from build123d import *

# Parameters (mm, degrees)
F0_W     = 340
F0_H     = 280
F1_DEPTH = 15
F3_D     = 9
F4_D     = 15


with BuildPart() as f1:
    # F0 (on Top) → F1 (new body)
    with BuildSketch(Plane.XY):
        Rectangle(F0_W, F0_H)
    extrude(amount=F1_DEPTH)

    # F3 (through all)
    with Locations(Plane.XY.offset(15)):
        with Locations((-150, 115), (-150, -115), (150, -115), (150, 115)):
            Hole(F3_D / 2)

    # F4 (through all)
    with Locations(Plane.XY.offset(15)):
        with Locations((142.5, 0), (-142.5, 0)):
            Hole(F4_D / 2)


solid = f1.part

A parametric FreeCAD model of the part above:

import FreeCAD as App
import Part
import Sketcher

V = App.Vector


def add_polygon(sketch, points):
    """Adds a closed chain of lines whose ends are joined by coincident constraints."""
    first, n = sketch.GeometryCount, len(points)
    for a, b in zip(points, points[1:] + points[:1]):
        sketch.addGeometry(Part.LineSegment(App.Vector(*a, 0), App.Vector(*b, 0)), False)
    for i in range(n):
        sketch.addConstraint(Sketcher.Constraint("Coincident", first + i, 2, first + (i + 1) % n, 1))

doc = App.newDocument("Part")
body = doc.addObject("PartDesign::Body", "Body")

# Sketch on XY plane
sketch1 = doc.addObject("Sketcher::SketchObject", "Sketch")
body.addObject(sketch1)
sketch1.AttachmentSupport = (doc.XY_Plane, [""])
sketch1.MapMode = "FlatFace"
add_polygon(sketch1, [(-170, 140), (-170, -140), (170, -140), (170, 140)])  # lines 0-3
sketch1.addConstraint([
    Sketcher.Constraint("Vertical", 0),
    Sketcher.Constraint("Horizontal", 1),
    Sketcher.Constraint("Vertical", 2),
    Sketcher.Constraint("Horizontal", 3),
    Sketcher.Constraint("Symmetric", 0, 2, 2, 2, -1, 1),
    Sketcher.Constraint("DistanceX", 1, 1, 1, 2, 340.0),
    Sketcher.Constraint("DistanceY", 0, 2, 0, 1, 280.0),
])
pad1 = doc.addObject("PartDesign::Pad", "Pad")
body.addObject(pad1)
pad1.Profile = sketch1
pad1.Length = 15

# Sketch on XY plane
sketch2 = doc.addObject("Sketcher::SketchObject", "Sketch001")
body.addObject(sketch2)
sketch2.AttachmentSupport = (doc.XY_Plane, [""])
sketch2.MapMode = "FlatFace"
sketch2.AttachmentOffset = App.Placement(V(0, 0, 15), App.Rotation())
sketch2.addGeometry([
    Part.Circle(V(-150, 115, 0), V(0, 0, 1), 4.5),
    Part.Circle(V(-150, -115, 0), V(0, 0, 1), 4.5),
    Part.Circle(V(150, -115, 0), V(0, 0, 1), 4.5),
    Part.Circle(V(150, 115, 0), V(0, 0, 1), 4.5),
], False)
sketch2.addConstraint([
    Sketcher.Constraint("Equal", 0, 1),
    Sketcher.Constraint("Equal", 1, 2),
    Sketcher.Constraint("Equal", 2, 3),
    Sketcher.Constraint("Symmetric", 0, 3, 2, 3, -1, 1),
    Sketcher.Constraint("Symmetric", 1, 3, 3, 3, -1, 1),
    Sketcher.Constraint("Symmetric", 1, 3, 2, 3, -2),
    Sketcher.Constraint("Diameter", 0, 9.0),
    Sketcher.Constraint("DistanceX", 0, 3, -1, 1, 150.0),
    Sketcher.Constraint("DistanceY", -1, 1, 0, 3, 115.0),
])
doc.recompute()
hole = doc.addObject("PartDesign::Hole", "Hole")
body.addObject(hole)
hole.Profile = sketch2
hole.ThreadType = "None"
hole.Diameter = 9
hole.DepthType = "ThroughAll"

# Sketch on XY plane
sketch3 = doc.addObject("Sketcher::SketchObject", "Sketch002")
body.addObject(sketch3)
sketch3.AttachmentSupport = (doc.XY_Plane, [""])
sketch3.MapMode = "FlatFace"
sketch3.AttachmentOffset = App.Placement(V(0, 0, 15), App.Rotation())
sketch3.addGeometry([
    Part.Circle(V(142, 0, 0), V(0, 0, 1), 8),
    Part.Circle(V(-142, 0, 0), V(0, 0, 1), 8),
], False)
sketch3.addConstraint([
    Sketcher.Constraint("Equal", 0, 1),
    Sketcher.Constraint("Symmetric", 0, 3, 1, 3, -1, 1),
    Sketcher.Constraint("PointOnObject", 0, 3, -1),
    Sketcher.Constraint("Diameter", 0, 15.0),
    Sketcher.Constraint("DistanceX", 1, 3, 0, 3, 285.0),
])
doc.recompute()
hole2 = doc.addObject("PartDesign::Hole", "Hole001")
body.addObject(hole2)
hole2.Profile = sketch3
hole2.ThreadType = "None"
hole2.Diameter = 15
hole2.DepthType = "ThroughAll"

doc.recompute()
